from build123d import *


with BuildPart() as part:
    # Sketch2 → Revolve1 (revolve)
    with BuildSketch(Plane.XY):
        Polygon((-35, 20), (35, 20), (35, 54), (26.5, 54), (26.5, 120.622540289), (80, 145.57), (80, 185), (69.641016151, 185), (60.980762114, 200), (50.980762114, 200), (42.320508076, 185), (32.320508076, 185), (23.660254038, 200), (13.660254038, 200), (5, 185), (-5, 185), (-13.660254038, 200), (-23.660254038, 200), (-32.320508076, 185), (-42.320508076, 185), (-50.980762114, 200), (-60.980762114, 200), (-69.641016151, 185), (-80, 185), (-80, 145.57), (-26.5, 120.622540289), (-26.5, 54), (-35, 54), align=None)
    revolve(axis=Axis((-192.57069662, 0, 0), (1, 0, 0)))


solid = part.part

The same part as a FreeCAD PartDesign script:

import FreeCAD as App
import Part
import Sketcher
from FreeCAD import Vector
Q = App.Units.Quantity

doc = App.newDocument("Part")
body = doc.addObject("PartDesign::Body", "Body")

sketch1 = doc.addObject("Sketcher::SketchObject", "Sketch")
body.addObject(sketch1)
sketch1.AttachmentSupport = (doc.XY_Plane, [""])
sketch1.MapMode = "FlatFace"
sketch1.addGeometry([
    Part.LineSegment(Vector(-35, 20, 0), Vector(35, 20, 0)),
    Part.LineSegment(Vector(35, 20, 0), Vector(35, 54, 0)),
    Part.LineSegment(Vector(35, 54, 0), Vector(26.5, 54, 0)),
    Part.LineSegment(Vector(26.5, 54, 0), Vector(26.5, 120.62254, 0)),
    Part.LineSegment(Vector(26.5, 120.62254, 0), Vector(80, 145.57, 0)),
    Part.LineSegment(Vector(80, 145.57, 0), Vector(80, 185, 0)),
    Part.LineSegment(Vector(80, 185, 0), Vector(69.641016, 185, 0)),
    Part.LineSegment(Vector(69.641016, 185, 0), Vector(60.980762, 200, 0)),
    Part.LineSegment(Vector(60.980762, 200, 0), Vector(50.980762, 200, 0)),
    Part.LineSegment(Vector(50.980762, 200, 0), Vector(42.320508, 185, 0)),
    Part.LineSegment(Vector(42.320508, 185, 0), Vector(32.320508, 185, 0)),
    Part.LineSegment(Vector(32.320508, 185, 0), Vector(23.660254, 200, 0)),
    Part.LineSegment(Vector(23.660254, 200, 0), Vector(13.660254, 200, 0)),
    Part.LineSegment(Vector(13.660254, 200, 0), Vector(5, 185, 0)),
    Part.LineSegment(Vector(5, 185, 0), Vector(-5, 185, 0)),
    Part.LineSegment(Vector(-5, 185, 0), Vector(-13.660254, 200, 0)),
    Part.LineSegment(Vector(-13.660254, 200, 0), Vector(-23.660254, 200, 0)),
    Part.LineSegment(Vector(-23.660254, 200, 0), Vector(-32.320508, 185, 0)),
    Part.LineSegment(Vector(-32.320508, 185, 0), Vector(-42.320508, 185, 0)),
    Part.LineSegment(Vector(-42.320508, 185, 0), Vector(-50.980762, 200, 0)),
    Part.LineSegment(Vector(-50.980762, 200, 0), Vector(-60.980762, 200, 0)),
    Part.LineSegment(Vector(-60.980762, 200, 0), Vector(-69.641016, 185, 0)),
    Part.LineSegment(Vector(-69.641016, 185, 0), Vector(-80, 185, 0)),
    Part.LineSegment(Vector(-80, 185, 0), Vector(-80, 145.57, 0)),
    Part.LineSegment(Vector(-80, 145.57, 0), Vector(-26.5, 120.62254, 0)),
    Part.LineSegment(Vector(-26.5, 120.62254, 0), Vector(-26.5, 54, 0)),
    Part.LineSegment(Vector(-26.5, 54, 0), Vector(-35, 54, 0)),
    Part.LineSegment(Vector(-35, 54, 0), Vector(-35, 20, 0)),
], False)
sketch1.addConstraint([
    Sketcher.Constraint("Coincident", 0, 2, 1, 1),
    Sketcher.Constraint("Coincident", 1, 2, 2, 1),
    Sketcher.Constraint("Coincident", 2, 2, 3, 1),
    Sketcher.Constraint("Coincident", 3, 2, 4, 1),
    Sketcher.Constraint("Coincident", 4, 2, 5, 1),
    Sketcher.Constraint("Coincident", 5, 2, 6, 1),
    Sketcher.Constraint("Coincident", 6, 2, 7, 1),
    Sketcher.Constraint("Coincident", 7, 2, 8, 1),
    Sketcher.Constraint("Coincident", 8, 2, 9, 1),
    Sketcher.Constraint("Coincident", 9, 2, 10, 1),
    Sketcher.Constraint("Coincident", 10, 2, 11, 1),
    Sketcher.Constraint("Coincident", 11, 2, 12, 1),
    Sketcher.Constraint("Coincident", 12, 2, 13, 1),
    Sketcher.Constraint("Coincident", 13, 2, 14, 1),
    Sketcher.Constraint("Coincident", 14, 2, 15, 1),
    Sketcher.Constraint("Coincident", 15, 2, 16, 1),
    Sketcher.Constraint("Coincident", 16, 2, 17, 1),
    Sketcher.Constraint("Coincident", 17, 2, 18, 1),
    Sketcher.Constraint("Coincident", 18, 2, 19, 1),
    Sketcher.Constraint("Coincident", 19, 2, 20, 1),
    Sketcher.Constraint("Coincident", 20, 2, 21, 1),
    Sketcher.Constraint("Coincident", 21, 2, 22, 1),
    Sketcher.Constraint("Coincident", 22, 2, 23, 1),
    Sketcher.Constraint("Coincident", 23, 2, 24, 1),
    Sketcher.Constraint("Coincident", 24, 2, 25, 1),
    Sketcher.Constraint("Coincident", 25, 2, 26, 1),
    Sketcher.Constraint("Coincident", 26, 2, 27, 1),
    Sketcher.Constraint("Coincident", 27, 2, 0, 1),
    Sketcher.Constraint("Horizontal", 0),
    Sketcher.Constraint("Vertical", 1),
    Sketcher.Constraint("Horizontal", 2),
    Sketcher.Constraint("Vertical", 3),
    Sketcher.Constraint("Vertical", 5),
    Sketcher.Constraint("Horizontal", 6),
    Sketcher.Constraint("Horizontal", 8),
    Sketcher.Constraint("Horizontal", 10),
    Sketcher.Constraint("Horizontal", 12),
    Sketcher.Constraint("Horizontal", 14),
    Sketcher.Constraint("Horizontal", 16),
    Sketcher.Constraint("Horizontal", 18),
    Sketcher.Constraint("Horizontal", 20),
    Sketcher.Constraint("Horizontal", 22),
    Sketcher.Constraint("Vertical", 23),
    Sketcher.Constraint("Vertical", 25),
    Sketcher.Constraint("Horizontal", 26),
    Sketcher.Constraint("Vertical", 27),
    Sketcher.Constraint("Symmetric", 12, 2, 15, 2, -2),
    Sketcher.Constraint("Symmetric", 10, 2, 17, 2, -2),
    Sketcher.Constraint("Symmetric", 8, 2, 19, 2, -2),
    Sketcher.Constraint("Symmetric", 6, 2, 21, 2, -2),
    Sketcher.Constraint("Symmetric", 4, 2, 23, 2, -2),
    Sketcher.Constraint("Symmetric", 3, 2, 24, 2, -2),
    Sketcher.Constraint("Symmetric", 1, 2, 26, 2, -2),
    Sketcher.Constraint("Parallel", 7, 11),
    Sketcher.Constraint("Parallel", 9, 13),
    Sketcher.Constraint("Parallel", 11, 15),
    Sketcher.Constraint("Parallel", 13, 17),
    Sketcher.Constraint("Parallel", 15, 19),
    Sketcher.Constraint("Parallel", 17, 21),
    Sketcher.Constraint("Horizontal", 6, 2, 9, 2),
    Sketcher.Constraint("Horizontal", 8, 2, 11, 2),
    Sketcher.Constraint("Horizontal", 10, 2, 13, 2),
    Sketcher.Constraint("Equal", 8, 10),
    Sketcher.Constraint("Equal", 10, 12),
    Sketcher.Constraint("Equal", 12, 14),
    Sketcher.Constraint("Equal", 14, 16),
    Sketcher.Constraint("DistanceX", 0, 1, 0, 2, Q("70 mm")),
    Sketcher.Constraint("DistanceX", 8, 2, 8, 1, Q("10 mm")),
    Sketcher.Constraint("DistanceY", 1, 1, 1, 2, Q("34 mm")),
    Sketcher.Constraint("Angle", 4, Q("25 deg")),
    Sketcher.Constraint("Angle", 7, Q("120 deg")),
    Sketcher.Constraint("DistanceX", 2, 2, 2, 1, Q("8.5 mm")),
    Sketcher.Constraint("DistanceY", -1, 1, 0, 2, Q("20 mm")),
    Sketcher.Constraint("DistanceX", -1, 1, 4, 2, Q("80 mm")),
    Sketcher.Constraint("DistanceY", -1, 1, 5, 2, Q("185 mm")),
    Sketcher.Constraint("DistanceY", -1, 1, 7, 2, Q("200 mm")),
    Sketcher.Constraint("DistanceY", 5, 1, 5, 2, Q("39.43 mm")),
])
revolution = doc.addObject("PartDesign::Revolution", "Revolution")
body.addObject(revolution)
revolution.Profile = sketch1
revolution.ReferenceAxis = (sketch1, ["H_Axis"])
revolution.Angle = 360

doc.recompute()
